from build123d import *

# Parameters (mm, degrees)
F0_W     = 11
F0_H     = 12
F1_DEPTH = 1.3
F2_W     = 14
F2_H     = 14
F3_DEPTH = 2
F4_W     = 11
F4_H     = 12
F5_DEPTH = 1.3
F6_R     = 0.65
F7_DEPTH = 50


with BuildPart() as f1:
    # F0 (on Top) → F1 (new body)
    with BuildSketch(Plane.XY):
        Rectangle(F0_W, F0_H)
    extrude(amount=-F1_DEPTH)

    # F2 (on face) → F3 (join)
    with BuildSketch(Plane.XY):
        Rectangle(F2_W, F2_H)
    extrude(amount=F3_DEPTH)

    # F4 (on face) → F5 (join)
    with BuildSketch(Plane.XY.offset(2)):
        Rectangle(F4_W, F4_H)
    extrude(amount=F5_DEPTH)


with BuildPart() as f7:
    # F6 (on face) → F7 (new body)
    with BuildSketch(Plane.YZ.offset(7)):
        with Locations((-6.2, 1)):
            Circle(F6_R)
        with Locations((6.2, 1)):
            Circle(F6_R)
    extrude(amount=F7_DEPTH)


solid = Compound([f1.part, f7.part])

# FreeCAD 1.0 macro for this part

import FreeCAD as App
import Part
import Sketcher

doc = App.newDocument("Part")
body = doc.addObject("PartDesign::Body", "Body")

# Sketch on XY plane
sketch1 = body.newObject("Sketcher::SketchObject", "Sketch")
sketch1.AttachmentSupport = (doc.getObject("XY_Plane"), [""])
sketch1.MapMode = "FlatFace"
sketch1.addGeometry([
    Part.LineSegment(App.Vector(-6, 6, 0), App.Vector(-6, -6, 0)),
    Part.LineSegment(App.Vector(-6, -6, 0), App.Vector(6, -6, 0)),
    Part.LineSegment(App.Vector(6, -6, 0), App.Vector(6, 6, 0)),
    Part.LineSegment(App.Vector(6, 6, 0), App.Vector(-6, 6, 0)),
], False)
sketch1.addConstraint([
    Sketcher.Constraint("Coincident", 0, 2, 1, 1),
    Sketcher.Constraint("Coincident", 1, 2, 2, 1),
    Sketcher.Constraint("Coincident", 2, 2, 3, 1),
    Sketcher.Constraint("Coincident", 3, 2, 0, 1),
    Sketcher.Constraint("Vertical", 0),
    Sketcher.Constraint("Horizontal", 1),
    Sketcher.Constraint("Vertical", 2),
    Sketcher.Constraint("Horizontal", 3),
    Sketcher.Constraint("Symmetric", 0, 2, 2, 2, -1, 1),
    Sketcher.Constraint("DistanceX", 1, 1, 1, 2, 11.0),
    Sketcher.Constraint("DistanceY", 0, 2, 0, 1, 12.0),
])
pad1 = body.newObject("PartDesign::Pad", "Pad")
pad1.Profile = sketch1
pad1.Length = 1.3
pad1.Reversed = True

# Sketch on XY plane
sketch2 = body.newObject("Sketcher::SketchObject", "Sketch001")
sketch2.AttachmentSupport = (doc.getObject("XY_Plane"), [""])
sketch2.MapMode = "FlatFace"
sketch2.addGeometry([
    Part.LineSegment(App.Vector(-7, 7, 0), App.Vector(-7, -7, 0)),
    Part.LineSegment(App.Vector(-7, -7, 0), App.Vector(7, -7, 0)),
    Part.LineSegment(App.Vector(7, -7, 0), App.Vector(7, 7, 0)),
    Part.LineSegment(App.Vector(7, 7, 0), App.Vector(-7, 7, 0)),
], False)
sketch2.addConstraint([
    Sketcher.Constraint("Coincident", 0, 2, 1, 1),
    Sketcher.Constraint("Coincident", 1, 2, 2, 1),
    Sketcher.Constraint("Coincident", 2, 2, 3, 1),
    Sketcher.Constraint("Coincident", 3, 2, 0, 1),
    Sketcher.Constraint("Vertical", 0),
    Sketcher.Constraint("Horizontal", 1),
    Sketcher.Constraint("Vertical", 2),
    Sketcher.Constraint("Horizontal", 3),
    Sketcher.Constraint("Symmetric", 0, 2, 2, 2, -1, 1),
    Sketcher.Constraint("Equal", 3, 0),
    Sketcher.Constraint("DistanceX", 1, 1, 1, 2, 14.0),
])
pad2 = body.newObject("PartDesign::Pad", "Pad001")
pad2.Profile = sketch2
pad2.Length = 2

# Sketch on XY plane
sketch3 = body.newObject("Sketcher::SketchObject", "Sketch002")
sketch3.AttachmentSupport = (doc.getObject("XY_Plane"), [""])
sketch3.MapMode = "FlatFace"
sketch3.AttachmentOffset = App.Placement(App.Vector(0, 0, 2), App.Rotation())
sketch3.addGeometry([
    Part.LineSegment(App.Vector(-6, 6, 0), App.Vector(-6, -6, 0)),
    Part.LineSegment(App.Vector(-6, -6, 0), App.Vector(6, -6, 0)),
    Part.LineSegment(App.Vector(6, -6, 0), App.Vector(6, 6, 0)),
    Part.LineSegment(App.Vector(6, 6, 0), App.Vector(-6, 6, 0)),
], False)
sketch3.addConstraint([
    Sketcher.Constraint("Coincident", 0, 2, 1, 1),
    Sketcher.Constraint("Coincident", 1, 2, 2, 1),
    Sketcher.Constraint("Coincident", 2, 2, 3, 1),
    Sketcher.Constraint("Coincident", 3, 2, 0, 1),
    Sketcher.Constraint("Vertical", 0),
    Sketcher.Constraint("Horizontal", 1),
    Sketcher.Constraint("Vertical", 2),
    Sketcher.Constraint("Horizontal", 3),
    Sketcher.Constraint("Symmetric", 0, 2, 2, 2, -1, 1),
    Sketcher.Constraint("DistanceX", 1, 1, 1, 2, 11.0),
    Sketcher.Constraint("DistanceY", 0, 2, 0, 1, 12.0),
])
pad3 = body.newObject("PartDesign::Pad", "Pad002")
pad3.Profile = sketch3
pad3.Length = 1.3
body2 = doc.addObject("PartDesign::Body", "Body001")
body2.AllowCompound = True

# Sketch on YZ plane
sketch4 = body2.newObject("Sketcher::SketchObject", "Sketch003")
sketch4.AttachmentSupport = (doc.getObject("YZ_Plane001"), [""])
sketch4.MapMode = "FlatFace"
sketch4.AttachmentOffset = App.Placement(App.Vector(0, 0, 7), App.Rotation())
sketch4.addGeometry([
    Part.Circle(App.Vector(-6.2, 1, 0), App.Vector(0, 0, 1), 0.7),
    Part.Circle(App.Vector(6.2, 1, 0), App.Vector(0, 0, 1), 0.7),
], False)
sketch4.addConstraint([
    Sketcher.Constraint("Equal", 0, 1),
    Sketcher.Constraint("Symmetric", 0, 3, 1, 3, -2),
    Sketcher.Constraint("Diameter", 0, 1.3),
    Sketcher.Constraint("DistanceY", -1, 1, 0, 3, 1.0),
    Sketcher.Constraint("DistanceX", 0, 3, -1, 1, 6.2),
])
pad4 = body2.newObject("PartDesign::Pad", "Pad003")
pad4.Profile = sketch4
pad4.Length = 50

doc.recompute()
